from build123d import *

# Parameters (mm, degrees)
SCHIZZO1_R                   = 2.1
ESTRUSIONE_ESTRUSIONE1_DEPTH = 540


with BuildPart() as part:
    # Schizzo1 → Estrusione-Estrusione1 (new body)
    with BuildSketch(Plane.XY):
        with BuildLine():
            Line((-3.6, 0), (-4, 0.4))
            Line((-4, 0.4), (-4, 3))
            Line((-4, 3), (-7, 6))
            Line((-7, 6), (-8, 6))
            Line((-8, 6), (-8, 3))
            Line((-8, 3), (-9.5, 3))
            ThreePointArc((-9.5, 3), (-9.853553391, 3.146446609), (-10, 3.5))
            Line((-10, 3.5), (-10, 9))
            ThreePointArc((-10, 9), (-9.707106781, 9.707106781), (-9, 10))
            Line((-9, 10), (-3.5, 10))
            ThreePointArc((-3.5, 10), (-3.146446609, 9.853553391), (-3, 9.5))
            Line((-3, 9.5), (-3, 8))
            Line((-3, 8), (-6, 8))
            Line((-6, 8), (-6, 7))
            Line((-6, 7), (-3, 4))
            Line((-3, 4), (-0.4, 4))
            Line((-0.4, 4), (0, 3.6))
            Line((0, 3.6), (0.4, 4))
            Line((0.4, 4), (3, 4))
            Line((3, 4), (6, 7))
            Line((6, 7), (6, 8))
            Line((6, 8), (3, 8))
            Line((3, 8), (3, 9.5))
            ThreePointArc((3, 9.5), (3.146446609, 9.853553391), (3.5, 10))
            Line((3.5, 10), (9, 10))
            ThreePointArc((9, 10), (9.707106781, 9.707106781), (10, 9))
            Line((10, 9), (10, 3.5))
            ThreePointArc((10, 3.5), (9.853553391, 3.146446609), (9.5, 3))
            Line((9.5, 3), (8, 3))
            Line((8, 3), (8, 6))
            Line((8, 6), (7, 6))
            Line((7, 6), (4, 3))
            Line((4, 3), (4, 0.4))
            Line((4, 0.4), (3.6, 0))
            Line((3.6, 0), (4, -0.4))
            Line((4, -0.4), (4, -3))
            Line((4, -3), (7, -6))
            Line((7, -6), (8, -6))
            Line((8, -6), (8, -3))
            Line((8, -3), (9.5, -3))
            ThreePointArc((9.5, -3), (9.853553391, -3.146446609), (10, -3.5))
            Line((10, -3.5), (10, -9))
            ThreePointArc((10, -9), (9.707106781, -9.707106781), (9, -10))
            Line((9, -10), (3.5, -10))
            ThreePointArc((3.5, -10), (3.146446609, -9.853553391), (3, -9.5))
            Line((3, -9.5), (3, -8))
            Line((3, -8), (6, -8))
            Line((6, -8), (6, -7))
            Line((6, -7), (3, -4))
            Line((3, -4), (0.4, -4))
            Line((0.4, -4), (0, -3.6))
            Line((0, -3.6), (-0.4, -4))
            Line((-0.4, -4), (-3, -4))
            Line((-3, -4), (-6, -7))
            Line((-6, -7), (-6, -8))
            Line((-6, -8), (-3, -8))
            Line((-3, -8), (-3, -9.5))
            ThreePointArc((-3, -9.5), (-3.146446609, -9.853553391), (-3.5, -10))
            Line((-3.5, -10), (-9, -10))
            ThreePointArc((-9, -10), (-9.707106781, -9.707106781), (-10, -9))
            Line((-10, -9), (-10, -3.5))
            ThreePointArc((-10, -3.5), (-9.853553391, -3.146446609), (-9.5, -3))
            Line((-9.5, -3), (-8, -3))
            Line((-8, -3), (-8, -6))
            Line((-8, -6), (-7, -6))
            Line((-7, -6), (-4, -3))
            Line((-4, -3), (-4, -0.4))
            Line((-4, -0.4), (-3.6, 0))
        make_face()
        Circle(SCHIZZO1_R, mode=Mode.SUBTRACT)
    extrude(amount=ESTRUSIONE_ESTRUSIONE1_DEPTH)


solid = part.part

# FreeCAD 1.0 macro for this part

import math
import FreeCAD as App
import Part
import Sketcher
from FreeCAD import Vector
Q = App.Units.Quantity

doc = App.newDocument("Part")
params = doc.addObject("Spreadsheet::Sheet", "Params")
for row, (alias, value) in enumerate([
    ("sketch1_radius", "1 mm"),
    ("sketch1_diameter", "4.2 mm"),
    ("sketch1_radius2", "0.5 mm"),
    ("sketch1_width", "1 mm"),
    ("sketch1_width2", "3 mm"),
    ("pad1_length", "540 mm"),
], start=1):
    params.set(f"A{row}", alias)
    params.set(f"B{row}", "=" + value)
    params.setAlias(f"B{row}", alias)

body = doc.addObject("PartDesign::Body", "Body")

# Sketch on XY plane
sketch1 = doc.addObject("Sketcher::SketchObject", "Sketch")
body.addObject(sketch1)
sketch1.AttachmentSupport = (doc.XY_Plane, [""])
sketch1.MapMode = "FlatFace"
sketch1.addGeometry([
    Part.LineSegment(Vector(-4, 0.4, 0), Vector(-3.6, 0, 0)),  # 0
    Part.LineSegment(Vector(-3.6, 0, 0), Vector(-4, -0.4, 0)),  # 1
    Part.LineSegment(Vector(-4, -0.4, 0), Vector(-4, -3, 0)),  # 2
    Part.LineSegment(Vector(-4, -3, 0), Vector(-7, -6, 0)),  # 3
    Part.LineSegment(Vector(-7, -6, 0), Vector(-8, -6, 0)),  # 4
    Part.LineSegment(Vector(-8, -6, 0), Vector(-8, -3, 0)),  # 5
    Part.LineSegment(Vector(-8, -3, 0), Vector(-9.5, -3, 0)),  # 6
    Part.ArcOfCircle(Part.Circle(Vector(-9.5, -3.5, 0), Vector(0, 0, 1), 0.5), math.radians(90), math.radians(180)),  # 7
    Part.LineSegment(Vector(-10, -3.5, 0), Vector(-10, -9, 0)),  # 8
    Part.ArcOfCircle(Part.Circle(Vector(-9, -9, 0), Vector(0, 0, 1), 1), math.radians(-180), math.radians(-90)),  # 9
    Part.LineSegment(Vector(-9, -10, 0), Vector(-3.5, -10, 0)),  # 10
    Part.ArcOfCircle(Part.Circle(Vector(-3.5, -9.5, 0), Vector(0, 0, 1), 0.5), math.radians(-90), math.radians(0)),  # 11
    Part.LineSegment(Vector(-3, -9.5, 0), Vector(-3, -8, 0)),  # 12
    Part.LineSegment(Vector(-3, -8, 0), Vector(-6, -8, 0)),  # 13
    Part.LineSegment(Vector(-6, -8, 0), Vector(-6, -7, 0)),  # 14
    Part.LineSegment(Vector(-6, -7, 0), Vector(-3, -4, 0)),  # 15
    Part.LineSegment(Vector(-3, -4, 0), Vector(-0.4, -4, 0)),  # 16
    Part.LineSegment(Vector(-0.4, -4, 0), Vector(0, -3.6, 0)),  # 17
    Part.LineSegment(Vector(0, -3.6, 0), Vector(0.4, -4, 0)),  # 18
    Part.LineSegment(Vector(0.4, -4, 0), Vector(3, -4, 0)),  # 19
    Part.LineSegment(Vector(3, -4, 0), Vector(6, -7, 0)),  # 20
    Part.LineSegment(Vector(6, -7, 0), Vector(6, -8, 0)),  # 21
    Part.LineSegment(Vector(6, -8, 0), Vector(3, -8, 0)),  # 22
    Part.LineSegment(Vector(3, -8, 0), Vector(3, -9.5, 0)),  # 23
    Part.ArcOfCircle(Part.Circle(Vector(3.5, -9.5, 0), Vector(0, 0, 1), 0.5), math.radians(180), math.radians(270)),  # 24
    Part.LineSegment(Vector(3.5, -10, 0), Vector(9, -10, 0)),  # 25
    Part.ArcOfCircle(Part.Circle(Vector(9, -9, 0), Vector(0, 0, 1), 1), math.radians(-90), math.radians(0)),  # 26
    Part.LineSegment(Vector(10, -9, 0), Vector(10, -3.5, 0)),  # 27
    Part.ArcOfCircle(Part.Circle(Vector(9.5, -3.5, 0), Vector(0, 0, 1), 0.5), math.radians(0), math.radians(90)),  # 28
    Part.LineSegment(Vector(9.5, -3, 0), Vector(8, -3, 0)),  # 29
    Part.LineSegment(Vector(8, -3, 0), Vector(8, -6, 0)),  # 30
    Part.LineSegment(Vector(8, -6, 0), Vector(7, -6, 0)),  # 31
    Part.LineSegment(Vector(7, -6, 0), Vector(4, -3, 0)),  # 32
    Part.LineSegment(Vector(4, -3, 0), Vector(4, -0.4, 0)),  # 33
    Part.LineSegment(Vector(4, -0.4, 0), Vector(3.6, 0, 0)),  # 34
    Part.LineSegment(Vector(3.6, 0, 0), Vector(4, 0.4, 0)),  # 35
    Part.LineSegment(Vector(4, 0.4, 0), Vector(4, 3, 0)),  # 36
    Part.LineSegment(Vector(4, 3, 0), Vector(7, 6, 0)),  # 37
    Part.LineSegment(Vector(7, 6, 0), Vector(8, 6, 0)),  # 38
    Part.LineSegment(Vector(8, 6, 0), Vector(8, 3, 0)),  # 39
    Part.LineSegment(Vector(8, 3, 0), Vector(9.5, 3, 0)),  # 40
    Part.ArcOfCircle(Part.Circle(Vector(9.5, 3.5, 0), Vector(0, 0, 1), 0.5), math.radians(-90), math.radians(0)),  # 41
    Part.LineSegment(Vector(10, 3.5, 0), Vector(10, 9, 0)),  # 42
    Part.ArcOfCircle(Part.Circle(Vector(9, 9, 0), Vector(0, 0, 1), 1), math.radians(0), math.radians(90)),  # 43
    Part.LineSegment(Vector(9, 10, 0), Vector(3.5, 10, 0)),  # 44
    Part.ArcOfCircle(Part.Circle(Vector(3.5, 9.5, 0), Vector(0, 0, 1), 0.5), math.radians(90), math.radians(180)),  # 45
    Part.LineSegment(Vector(3, 9.5, 0), Vector(3, 8, 0)),  # 46
    Part.LineSegment(Vector(3, 8, 0), Vector(6, 8, 0)),  # 47
    Part.LineSegment(Vector(6, 8, 0), Vector(6, 7, 0)),  # 48
    Part.LineSegment(Vector(6, 7, 0), Vector(3, 4, 0)),  # 49
    Part.LineSegment(Vector(3, 4, 0), Vector(0.4, 4, 0)),  # 50
    Part.LineSegment(Vector(0.4, 4, 0), Vector(0, 3.6, 0)),  # 51
    Part.LineSegment(Vector(0, 3.6, 0), Vector(-0.4, 4, 0)),  # 52
    Part.LineSegment(Vector(-0.4, 4, 0), Vector(-3, 4, 0)),  # 53
    Part.LineSegment(Vector(-3, 4, 0), Vector(-6, 7, 0)),  # 54
    Part.LineSegment(Vector(-6, 7, 0), Vector(-6, 8, 0)),  # 55
    Part.LineSegment(Vector(-6, 8, 0), Vector(-3, 8, 0)),  # 56
    Part.LineSegment(Vector(-3, 8, 0), Vector(-3, 9.5, 0)),  # 57
    Part.ArcOfCircle(Part.Circle(Vector(-3.5, 9.5, 0), Vector(0, 0, 1), 0.5), math.radians(0), math.radians(90)),  # 58
    Part.LineSegment(Vector(-3.5, 10, 0), Vector(-9, 10, 0)),  # 59
    Part.ArcOfCircle(Part.Circle(Vector(-9, 9, 0), Vector(0, 0, 1), 1), math.radians(90), math.radians(180)),  # 60
    Part.LineSegment(Vector(-10, 9, 0), Vector(-10, 3.5, 0)),  # 61
    Part.ArcOfCircle(Part.Circle(Vector(-9.5, 3.5, 0), Vector(0, 0, 1), 0.5), math.radians(180), math.radians(270)),  # 62
    Part.LineSegment(Vector(-9.5, 3, 0), Vector(-8, 3, 0)),  # 63
    Part.LineSegment(Vector(-8, 3, 0), Vector(-8, 6, 0)),  # 64
    Part.LineSegment(Vector(-8, 6, 0), Vector(-7, 6, 0)),  # 65
    Part.LineSegment(Vector(-7, 6, 0), Vector(-4, 3, 0)),  # 66
    Part.LineSegment(Vector(-4, 3, 0), Vector(-4, 0.4, 0)),  # 67
    Part.Circle(Vector(0, 0, 0), Vector(0, 0, 1), 2.1),  # 68
], False)
sketch1.addConstraint([
    Sketcher.Constraint("Coincident", 0, 2, 1, 1),
    Sketcher.Constraint("Coincident", 1, 2, 2, 1),
    Sketcher.Constraint("Coincident", 2, 2, 3, 1),
    Sketcher.Constraint("Coincident", 3, 2, 4, 1),
    Sketcher.Constraint("Coincident", 4, 2, 5, 1),
    Sketcher.Constraint("Coincident", 5, 2, 6, 1),
    Sketcher.Constraint("Tangent", 6, 2, 7, 1),
    Sketcher.Constraint("Tangent", 7, 2, 8, 1),
    Sketcher.Constraint("Tangent", 8, 2, 9, 1),
    Sketcher.Constraint("Tangent", 9, 2, 10, 1),
    Sketcher.Constraint("Tangent", 10, 2, 11, 1),
    Sketcher.Constraint("Tangent", 11, 2, 12, 1),
    Sketcher.Constraint("Coincident", 12, 2, 13, 1),
    Sketcher.Constraint("Coincident", 13, 2, 14, 1),
    Sketcher.Constraint("Coincident", 14, 2, 15, 1),
    Sketcher.Constraint("Coincident", 15, 2, 16, 1),
    Sketcher.Constraint("Coincident", 16, 2, 17, 1),
    Sketcher.Constraint("Coincident", 17, 2, 18, 1),
    Sketcher.Constraint("Coincident", 18, 2, 19, 1),
    Sketcher.Constraint("Coincident", 19, 2, 20, 1),
    Sketcher.Constraint("Coincident", 20, 2, 21, 1),
    Sketcher.Constraint("Coincident", 21, 2, 22, 1),
    Sketcher.Constraint("Coincident", 22, 2, 23, 1),
    Sketcher.Constraint("Tangent", 23, 2, 24, 1),
    Sketcher.Constraint("Tangent", 24, 2, 25, 1),
    Sketcher.Constraint("Tangent", 25, 2, 26, 1),
    Sketcher.Constraint("Tangent", 26, 2, 27, 1),
    Sketcher.Constraint("Tangent", 27, 2, 28, 1),
    Sketcher.Constraint("Tangent", 28, 2, 29, 1),
    Sketcher.Constraint("Coincident", 29, 2, 30, 1),
    Sketcher.Constraint("Coincident", 30, 2, 31, 1),
    Sketcher.Constraint("Coincident", 31, 2, 32, 1),
    Sketcher.Constraint("Coincident", 32, 2, 33, 1),
    Sketcher.Constraint("Coincident", 33, 2, 34, 1),
    Sketcher.Constraint("Coincident", 34, 2, 35, 1),
    Sketcher.Constraint("Coincident", 35, 2, 36, 1),
    Sketcher.Constraint("Coincident", 36, 2, 37, 1),
    Sketcher.Constraint("Coincident", 37, 2, 38, 1),
    Sketcher.Constraint("Coincident", 38, 2, 39, 1),
    Sketcher.Constraint("Coincident", 39, 2, 40, 1),
    Sketcher.Constraint("Tangent", 40, 2, 41, 1),
    Sketcher.Constraint("Tangent", 41, 2, 42, 1),
    Sketcher.Constraint("Tangent", 42, 2, 43, 1),
    Sketcher.Constraint("Tangent", 43, 2, 44, 1),
    Sketcher.Constraint("Tangent", 44, 2, 45, 1),
    Sketcher.Constraint("Tangent", 45, 2, 46, 1),
    Sketcher.Constraint("Coincident", 46, 2, 47, 1),
    Sketcher.Constraint("Coincident", 47, 2, 48, 1),
    Sketcher.Constraint("Coincident", 48, 2, 49, 1),
    Sketcher.Constraint("Coincident", 49, 2, 50, 1),
    Sketcher.Constraint("Coincident", 50, 2, 51, 1),
    Sketcher.Constraint("Coincident", 51, 2, 52, 1),
    Sketcher.Constraint("Coincident", 52, 2, 53, 1),
    Sketcher.Constraint("Coincident", 53, 2, 54, 1),
    Sketcher.Constraint("Coincident", 54, 2, 55, 1),
    Sketcher.Constraint("Coincident", 55, 2, 56, 1),
    Sketcher.Constraint("Coincident", 56, 2, 57, 1),
    Sketcher.Constraint("Tangent", 57, 2, 58, 1),
    Sketcher.Constraint("Tangent", 58, 2, 59, 1),
    Sketcher.Constraint("Tangent", 59, 2, 60, 1),
    Sketcher.Constraint("Tangent", 60, 2, 61, 1),
    Sketcher.Constraint("Tangent", 61, 2, 62, 1),
    Sketcher.Constraint("Tangent", 62, 2, 63, 1),
    Sketcher.Constraint("Coincident", 63, 2, 64, 1),
    Sketcher.Constraint("Coincident", 64, 2, 65, 1),
    Sketcher.Constraint("Coincident", 65, 2, 66, 1),
    Sketcher.Constraint("Coincident", 66, 2, 67, 1),
    Sketcher.Constraint("Coincident", 67, 2, 0, 1),
    Sketcher.Constraint("Vertical", 2),
    Sketcher.Constraint("Horizontal", 4),
    Sketcher.Constraint("Vertical", 5),
    Sketcher.Constraint("Horizontal", 6),
    Sketcher.Constraint("Vertical", 8),
    Sketcher.Constraint("Horizontal", 10),
    Sketcher.Constraint("Vertical", 12),
    Sketcher.Constraint("Horizontal", 13),
    Sketcher.Constraint("Vertical", 14),
    Sketcher.Constraint("Horizontal", 16),
    Sketcher.Constraint("Horizontal", 19),
    Sketcher.Constraint("Vertical", 21),
    Sketcher.Constraint("Horizontal", 22),
    Sketcher.Constraint("Vertical", 23),
    Sketcher.Constraint("Horizontal", 25),
    Sketcher.Constraint("Vertical", 27),
    Sketcher.Constraint("Horizontal", 29),
    Sketcher.Constraint("Vertical", 30),
    Sketcher.Constraint("Horizontal", 31),
    Sketcher.Constraint("Vertical", 33),
    Sketcher.Constraint("Vertical", 36),
    Sketcher.Constraint("Horizontal", 38),
    Sketcher.Constraint("Vertical", 39),
    Sketcher.Constraint("Horizontal", 40),
    Sketcher.Constraint("Vertical", 42),
    Sketcher.Constraint("Horizontal", 44),
    Sketcher.Constraint("Vertical", 46),
    Sketcher.Constraint("Horizontal", 47),
    Sketcher.Constraint("Vertical", 48),
    Sketcher.Constraint("Horizontal", 50),
    Sketcher.Constraint("Horizontal", 53),
    Sketcher.Constraint("Vertical", 55),
    Sketcher.Constraint("Horizontal", 56),
    Sketcher.Constraint("Vertical", 57),
    Sketcher.Constraint("Horizontal", 59),
    Sketcher.Constraint("Vertical", 61),
    Sketcher.Constraint("Horizontal", 63),
    Sketcher.Constraint("Vertical", 64),
    Sketcher.Constraint("Horizontal", 65),
    Sketcher.Constraint("Vertical", 67),
    Sketcher.Constraint("Coincident", 68, 3, -1, 1),
    Sketcher.Constraint("Equal", 7, 11),
    Sketcher.Constraint("Equal", 11, 24),
    Sketcher.Constraint("Equal", 9, 26),
    Sketcher.Constraint("Equal", 24, 28),
    Sketcher.Constraint("Equal", 28, 41),
    Sketcher.Constraint("Equal", 26, 43),
    Sketcher.Constraint("Equal", 41, 45),
    Sketcher.Constraint("Equal", 45, 58),
    Sketcher.Constraint("Equal", 43, 60),
    Sketcher.Constraint("Equal", 58, 62),
    Sketcher.Constraint("Symmetric", 7, 3, 41, 3, -1, 1),
    Sketcher.Constraint("Symmetric", 11, 3, 45, 3, -1, 1),
    Sketcher.Constraint("Symmetric", 24, 3, 58, 3, -1, 1),
    Sketcher.Constraint("Symmetric", 28, 3, 62, 3, -1, 1),
    Sketcher.Constraint("Symmetric", 0, 2, 34, 2, -1, 1),
    Sketcher.Constraint("Symmetric", 1, 2, 35, 2, -1, 1),
    Sketcher.Constraint("Symmetric", 3, 2, 37, 2, -1, 1),
    Sketcher.Constraint("Symmetric", 13, 2, 47, 2, -1, 1),
    Sketcher.Constraint("Symmetric", 15, 2, 49, 2, -1, 1),
    Sketcher.Constraint("Symmetric", 17, 2, 51, 2, -1, 1),
    Sketcher.Constraint("Symmetric", 18, 2, 52, 2, -1, 1),
    Sketcher.Constraint("Symmetric", 20, 2, 54, 2, -1, 1),
    Sketcher.Constraint("Symmetric", 30, 2, 64, 2, -1, 1),
    Sketcher.Constraint("Symmetric", 32, 2, 66, 2, -1, 1),
    Sketcher.Constraint("Symmetric", 11, 3, 24, 3, -2),
    Sketcher.Constraint("Symmetric", 7, 3, 28, 3, -2),
    Sketcher.Constraint("Symmetric", 16, 2, 18, 2, -2),
    Sketcher.Constraint("Symmetric", 14, 2, 20, 2, -2),
    Sketcher.Constraint("Symmetric", 4, 2, 30, 2, -2),
    Sketcher.Constraint("Symmetric", 2, 2, 32, 2, -2),
    Sketcher.Constraint("PointOnObject", 0, 2, -1),
    Sketcher.Constraint("PointOnObject", 17, 2, -2),
    Sketcher.Constraint("Perpendicular", 0, 1),
    Sketcher.Constraint("Parallel", 1, 3),
    Sketcher.Constraint("Parallel", 3, 15),
    Sketcher.Constraint("Parallel", 15, 17),
    Sketcher.Constraint("Perpendicular", 17, 18),
    Sketcher.Constraint("Parallel", 18, 20),
    Sketcher.Constraint("Parallel", 20, 32),
    Sketcher.Constraint("Parallel", 32, 34),
    Sketcher.Constraint("Parallel", 35, 37),
    Sketcher.Constraint("Parallel", 37, 49),
    Sketcher.Constraint("Parallel", 49, 51),
    Sketcher.Constraint("Parallel", 52, 54),
    Sketcher.Constraint("Parallel", 54, 66),
    Sketcher.Constraint("Horizontal", 2, 2, 5, 2),
    Sketcher.Constraint("Horizontal", 13, 2, 21, 2),
    Sketcher.Constraint("Horizontal", 47, 2, 55, 2),
    Sketcher.Constraint("Vertical", 12, 2, 15, 2),
    Sketcher.Constraint("Vertical", 30, 2, 38, 2),
    Sketcher.Constraint("Equal", 53, 2),
    Sketcher.Constraint("Equal", 56, 5),
    Sketcher.Constraint("Equal", 59, 8),
    Sketcher.Constraint("Equal", 63, 12),
    Sketcher.Constraint("Equal", 65, 14),
    Sketcher.Constraint("Equal", 1, 17),
    Sketcher.Constraint("Radius", 9, Q("1 mm")),
    Sketcher.Constraint("Diameter", 68, Q("4.2 mm")),
    Sketcher.Constraint("Radius", 7, Q("0.5 mm")),
    Sketcher.Constraint("DistanceX", 4, 2, 4, 1, Q("1 mm")),
    Sketcher.Constraint("DistanceX", 13, 2, 13, 1, Q("3 mm")),
    Sketcher.Constraint("DistanceX", 6, 2, 6, 1, Q("1.5 mm")),
    Sketcher.Constraint("DistanceX", 10, 1, 10, 2, Q("5.5 mm")),
    Sketcher.Constraint("DistanceX", 16, 1, 16, 2, Q("2.6 mm")),
    Sketcher.Constraint("DistanceX", 9, 3, -1, 1, Q("9 mm")),
])
sketch1.setExpression("Constraints[165]", "Params.sketch1_radius")
sketch1.setExpression("Constraints[166]", "Params.sketch1_diameter")
sketch1.setExpression("Constraints[167]", "Params.sketch1_radius2")
sketch1.setExpression("Constraints[168]", "Params.sketch1_width")
sketch1.setExpression("Constraints[169]", "Params.sketch1_width2")
pad1 = doc.addObject("PartDesign::Pad", "Pad")
body.addObject(pad1)
pad1.Profile = sketch1
pad1.setExpression("Length", "Params.pad1_length")

doc.recompute()
